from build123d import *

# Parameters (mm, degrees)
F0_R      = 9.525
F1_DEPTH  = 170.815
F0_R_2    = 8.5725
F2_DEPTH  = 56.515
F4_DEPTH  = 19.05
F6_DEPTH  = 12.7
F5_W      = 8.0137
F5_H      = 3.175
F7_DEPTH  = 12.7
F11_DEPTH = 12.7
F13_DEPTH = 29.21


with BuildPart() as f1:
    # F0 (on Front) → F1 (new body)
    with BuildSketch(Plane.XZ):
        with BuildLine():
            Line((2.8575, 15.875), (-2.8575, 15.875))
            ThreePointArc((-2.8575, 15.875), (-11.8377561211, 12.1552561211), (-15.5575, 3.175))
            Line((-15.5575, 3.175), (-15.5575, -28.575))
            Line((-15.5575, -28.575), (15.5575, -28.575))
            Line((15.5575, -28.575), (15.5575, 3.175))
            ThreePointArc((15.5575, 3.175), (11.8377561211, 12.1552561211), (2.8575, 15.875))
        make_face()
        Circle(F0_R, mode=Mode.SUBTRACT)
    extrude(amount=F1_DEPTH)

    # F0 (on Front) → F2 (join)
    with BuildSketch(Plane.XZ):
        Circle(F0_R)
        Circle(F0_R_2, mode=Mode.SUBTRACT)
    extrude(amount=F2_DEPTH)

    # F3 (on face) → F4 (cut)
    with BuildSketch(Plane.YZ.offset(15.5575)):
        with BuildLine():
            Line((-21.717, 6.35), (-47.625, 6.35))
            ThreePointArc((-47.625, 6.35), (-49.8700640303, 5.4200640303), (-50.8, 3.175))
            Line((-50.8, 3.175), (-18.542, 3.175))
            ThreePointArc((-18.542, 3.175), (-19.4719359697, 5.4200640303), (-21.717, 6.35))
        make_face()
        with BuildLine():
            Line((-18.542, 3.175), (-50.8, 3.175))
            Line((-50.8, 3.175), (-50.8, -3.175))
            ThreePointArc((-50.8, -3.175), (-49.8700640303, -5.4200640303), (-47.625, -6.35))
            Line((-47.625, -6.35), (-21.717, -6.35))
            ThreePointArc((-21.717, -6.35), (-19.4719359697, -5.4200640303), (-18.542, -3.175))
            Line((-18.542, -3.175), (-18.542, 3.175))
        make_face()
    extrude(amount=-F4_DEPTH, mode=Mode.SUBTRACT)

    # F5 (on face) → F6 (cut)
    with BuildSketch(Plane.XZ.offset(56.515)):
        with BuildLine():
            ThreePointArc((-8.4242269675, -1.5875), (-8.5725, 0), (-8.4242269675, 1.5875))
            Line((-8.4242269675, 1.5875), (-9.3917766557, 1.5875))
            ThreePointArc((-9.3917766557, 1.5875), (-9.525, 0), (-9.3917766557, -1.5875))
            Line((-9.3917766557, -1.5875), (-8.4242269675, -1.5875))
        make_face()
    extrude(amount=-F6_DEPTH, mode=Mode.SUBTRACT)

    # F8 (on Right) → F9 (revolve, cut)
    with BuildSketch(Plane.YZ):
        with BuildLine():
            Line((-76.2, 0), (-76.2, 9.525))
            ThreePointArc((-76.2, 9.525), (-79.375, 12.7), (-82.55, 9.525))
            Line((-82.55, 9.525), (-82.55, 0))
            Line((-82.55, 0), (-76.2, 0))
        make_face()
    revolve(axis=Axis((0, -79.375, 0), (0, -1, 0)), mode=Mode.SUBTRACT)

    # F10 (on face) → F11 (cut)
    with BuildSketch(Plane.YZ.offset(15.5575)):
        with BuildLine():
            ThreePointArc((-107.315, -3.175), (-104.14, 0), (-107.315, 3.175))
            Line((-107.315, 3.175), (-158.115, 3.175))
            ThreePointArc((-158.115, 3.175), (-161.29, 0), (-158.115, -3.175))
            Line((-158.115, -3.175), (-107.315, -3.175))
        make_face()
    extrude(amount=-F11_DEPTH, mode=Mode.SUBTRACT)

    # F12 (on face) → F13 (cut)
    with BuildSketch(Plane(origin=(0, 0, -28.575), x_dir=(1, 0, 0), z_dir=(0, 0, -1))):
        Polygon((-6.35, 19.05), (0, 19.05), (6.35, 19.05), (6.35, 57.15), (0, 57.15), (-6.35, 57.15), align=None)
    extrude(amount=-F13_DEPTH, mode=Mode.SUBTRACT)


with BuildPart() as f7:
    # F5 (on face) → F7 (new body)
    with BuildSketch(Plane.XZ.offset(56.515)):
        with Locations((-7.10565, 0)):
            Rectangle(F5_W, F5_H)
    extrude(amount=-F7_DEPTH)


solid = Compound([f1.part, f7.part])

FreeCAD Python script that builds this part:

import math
import FreeCAD as App
import Part
import Sketcher
from FreeCAD import Vector
Q = App.Units.Quantity


def add_polygon(sketch, points):
    """Adds a closed chain of lines whose ends are joined by coincident constraints."""
    first, n = sketch.GeometryCount, len(points)
    for a, b in zip(points, points[1:] + points[:1]):
        sketch.addGeometry(Part.LineSegment(App.Vector(*a, 0), App.Vector(*b, 0)), False)
    for i in range(n):
        sketch.addConstraint(Sketcher.Constraint("Coincident", first + i, 2, first + (i + 1) % n, 1))

doc = App.newDocument("Part")
params = doc.addObject("Spreadsheet::Sheet", "Params")
for row, (alias, value) in enumerate([
    ("sketch1_radius", "0.5 in"),
    ("sketch1_diameter", "0.75 in"),
    ("sketch1_height", "1.25 in"),
    ("sketch1_width", "0.225 in"),
    ("pad1_length", "6.725 in"),
    ("sketch2_diameter", "0.75 in"),
    ("sketch2_diameter2", "0.675 in"),
    ("pad2_length", "2.225 in"),
    ("sketch3_radius", "0.125 in"),
    ("sketch3_width", "1.02 in"),
    ("sketch3_height", "0.25 in"),
    ("pocket1_length", "0.75 in"),
    ("sketch4_radius", "0.375 in"),
    ("pocket2_length", "0.5 in"),
    ("sketch5_radius", "0.125 in"),
    ("sketch5_height", "0.375 in"),
    ("groove_angle", "360 deg"),
    ("sketch6_width", "2 in"),
    ("sketch6_radius", "0.125 in"),
    ("pocket3_length", "0.5 in"),
    ("sketch7_width", "0.5 in"),
    ("sketch7_height", "1.5 in"),
    ("pocket4_length", "1.15 in"),
    ("sketch8_height", "0.125 in"),
    ("pad3_length", "0.5 in"),
], start=1):
    params.set(f"A{row}", alias)
    params.set(f"B{row}", "=" + value)
    params.setAlias(f"B{row}", alias)

body = doc.addObject("PartDesign::Body", "Body")

sketch1 = body.newObject("Sketcher::SketchObject", "Sketch")
sketch1.AttachmentSupport = (doc.getObject("XZ_Plane"), [""])
sketch1.MapMode = "FlatFace"
sketch1.addGeometry([
    Part.LineSegment(Vector(2.8575, 15.875, 0), Vector(-2.8575, 15.875, 0)),
    Part.ArcOfCircle(Part.Circle(Vector(-2.8575, 3.175, 0), Vector(0, 0, 1), 12.7), math.radians(90), math.radians(180)),
    Part.LineSegment(Vector(-15.5575, 3.175, 0), Vector(-15.5575, -28.575, 0)),
    Part.LineSegment(Vector(-15.5575, -28.575, 0), Vector(15.5575, -28.575, 0)),
    Part.LineSegment(Vector(15.5575, -28.575, 0), Vector(15.5575, 3.175, 0)),
    Part.ArcOfCircle(Part.Circle(Vector(2.8575, 3.175, 0), Vector(0, 0, 1), 12.7), math.radians(0), math.radians(90)),
    Part.Circle(Vector(0, 0, 0), Vector(0, 0, 1), 9.525),
], False)
sketch1.addConstraint([
    Sketcher.Constraint("Tangent", 0, 2, 1, 1),
    Sketcher.Constraint("Tangent", 1, 2, 2, 1),
    Sketcher.Constraint("Coincident", 2, 2, 3, 1),
    Sketcher.Constraint("Coincident", 3, 2, 4, 1),
    Sketcher.Constraint("Tangent", 4, 2, 5, 1),
    Sketcher.Constraint("Tangent", 5, 2, 0, 1),
    Sketcher.Constraint("Horizontal", 0),
    Sketcher.Constraint("Vertical", 2),
    Sketcher.Constraint("Horizontal", 3),
    Sketcher.Constraint("Vertical", 4),
    Sketcher.Constraint("Coincident", 6, 3, -1, 1),
    Sketcher.Constraint("Equal", 1, 5),
    Sketcher.Constraint("Radius", 1, Q("0.5 in")),
    Sketcher.Constraint("Diameter", 6, Q("0.75 in")),
    Sketcher.Constraint("DistanceY", 2, 2, 2, 1, Q("1.25 in")),
    Sketcher.Constraint("DistanceX", 0, 2, 0, 1, Q("0.225 in")),
    Sketcher.Constraint("DistanceY", -1, 1, 1, 3, Q("0.125 in")),
    Sketcher.Constraint("DistanceX", 1, 3, -1, 1, Q("0.1125 in")),
])
sketch1.setExpression("Constraints[12]", "Params.sketch1_radius")
sketch1.setExpression("Constraints[13]", "Params.sketch1_diameter")
sketch1.setExpression("Constraints[14]", "Params.sketch1_height")
sketch1.setExpression("Constraints[15]", "Params.sketch1_width")
pad1 = body.newObject("PartDesign::Pad", "Pad")
pad1.Profile = sketch1
pad1.setExpression("Length", "Params.pad1_length")

sketch2 = body.newObject("Sketcher::SketchObject", "Sketch001")
sketch2.AttachmentSupport = (doc.getObject("XZ_Plane"), [""])
sketch2.MapMode = "FlatFace"
sketch2.addGeometry([
    Part.Circle(Vector(0, 0, 0), Vector(0, 0, 1), 9.525),
    Part.Circle(Vector(0, 0, 0), Vector(0, 0, 1), 8.5725),
], False)
sketch2.addConstraint([
    Sketcher.Constraint("Coincident", 0, 3, -1, 1),
    Sketcher.Constraint("Coincident", 1, 3, -1, 1),
    Sketcher.Constraint("Diameter", 0, Q("0.75 in")),
    Sketcher.Constraint("Diameter", 1, Q("0.675 in")),
])
sketch2.setExpression("Constraints[2]", "Params.sketch2_diameter")
sketch2.setExpression("Constraints[3]", "Params.sketch2_diameter2")
pad2 = body.newObject("PartDesign::Pad", "Pad001")
pad2.Profile = sketch2
pad2.setExpression("Length", "Params.pad2_length")

sketch3 = body.newObject("Sketcher::SketchObject", "Sketch002")
sketch3.AttachmentSupport = (doc.getObject("YZ_Plane"), [""])
sketch3.MapMode = "FlatFace"
sketch3.AttachmentOffset = App.Placement(Vector(0, 0, 0.6125 * 25.4), App.Rotation())
sketch3.addGeometry([
    Part.LineSegment(Vector(-21.717, 6.35, 0), Vector(-47.625, 6.35, 0)),
    Part.ArcOfCircle(Part.Circle(Vector(-47.625, 3.175, 0), Vector(0, 0, 1), 3.175), math.radians(90), math.radians(180)),
    Part.LineSegment(Vector(-50.8, 3.175, 0), Vector(-50.8, -3.175, 0)),
    Part.ArcOfCircle(Part.Circle(Vector(-47.625, -3.175, 0), Vector(0, 0, 1), 3.175), math.radians(180), math.radians(270)),
    Part.LineSegment(Vector(-47.625, -6.35, 0), Vector(-21.717, -6.35, 0)),
    Part.ArcOfCircle(Part.Circle(Vector(-21.717, -3.175, 0), Vector(0, 0, 1), 3.175), math.radians(-90), math.radians(0)),
    Part.LineSegment(Vector(-18.542, -3.175, 0), Vector(-18.542, 3.175, 0)),
    Part.ArcOfCircle(Part.Circle(Vector(-21.717, 3.175, 0), Vector(0, 0, 1), 3.175), math.radians(0), math.radians(90)),
], False)
sketch3.addConstraint([
    Sketcher.Constraint("Tangent", 0, 2, 1, 1),
    Sketcher.Constraint("Tangent", 1, 2, 2, 1),
    Sketcher.Constraint("Tangent", 2, 2, 3, 1),
    Sketcher.Constraint("Tangent", 3, 2, 4, 1),
    Sketcher.Constraint("Tangent", 4, 2, 5, 1),
    Sketcher.Constraint("Tangent", 5, 2, 6, 1),
    Sketcher.Constraint("Tangent", 6, 2, 7, 1),
    Sketcher.Constraint("Tangent", 7, 2, 0, 1),
    Sketcher.Constraint("Horizontal", 0),
    Sketcher.Constraint("Vertical", 2),
    Sketcher.Constraint("Horizontal", 4),
    Sketcher.Constraint("Vertical", 6),
    Sketcher.Constraint("Equal", 1, 3),
    Sketcher.Constraint("Equal", 3, 5),
    Sketcher.Constraint("Equal", 5, 7),
    Sketcher.Constraint("DistanceX", 1, 2, -1, 1, Q("2 in")),
    Sketcher.Constraint("Radius", 1, Q("0.125 in")),
    Sketcher.Constraint("DistanceX", 0, 2, 0, 1, Q("1.02 in")),
    Sketcher.Constraint("DistanceY", 2, 2, 2, 1, Q("0.25 in")),
    Sketcher.Constraint("DistanceY", -1, 1, 0, 2, Q("0.25 in")),
])
sketch3.setExpression("Constraints[16]", "Params.sketch3_radius")
sketch3.setExpression("Constraints[17]", "Params.sketch3_width")
sketch3.setExpression("Constraints[18]", "Params.sketch3_height")
pocket1 = body.newObject("PartDesign::Pocket", "Pocket")
pocket1.Profile = sketch3
pocket1.setExpression("Length", "Params.pocket1_length")

sketch4 = body.newObject("Sketcher::SketchObject", "Sketch003")
sketch4.AttachmentSupport = (doc.getObject("XZ_Plane"), [""])
sketch4.MapMode = "FlatFace"
sketch4.AttachmentOffset = App.Placement(Vector(0, 0, 2.225 * 25.4), App.Rotation())
sketch4.addGeometry([
    Part.ArcOfCircle(Part.Circle(Vector(0, 0, 0), Vector(0, 0, 1), 8.5725), math.radians(169.328071), math.radians(190.671929)),
    Part.LineSegment(Vector(-8.424227, 1.5875, 0), Vector(-9.391777, 1.5875, 0)),
    Part.ArcOfCircle(Part.Circle(Vector(0, 0, 0), Vector(0, 0, 1), 9.525), math.radians(170.405932), math.radians(189.594068)),
    Part.LineSegment(Vector(-9.391777, -1.5875, 0), Vector(-8.424227, -1.5875, 0)),
], False)
sketch4.addConstraint([
    Sketcher.Constraint("Coincident", 0, 1, 1, 1),
    Sketcher.Constraint("Coincident", 1, 2, 2, 1),
    Sketcher.Constraint("Coincident", 2, 2, 3, 1),
    Sketcher.Constraint("Coincident", 3, 2, 0, 2),
    Sketcher.Constraint("Horizontal", 1),
    Sketcher.Constraint("Horizontal", 3),
    Sketcher.Constraint("Coincident", 0, 3, -1, 1),
    Sketcher.Constraint("Coincident", 2, 3, -1, 1),
    Sketcher.Constraint("Vertical", 1, 2, 2, 2),
    Sketcher.Constraint("Radius", 2, Q("0.375 in")),
    Sketcher.Constraint("Radius", 0, Q("0.3375 in")),
    Sketcher.Constraint("DistanceY", -1, 1, 0, 1, Q("0.0625 in")),
])
sketch4.setExpression("Constraints[9]", "Params.sketch4_radius")
pocket2 = body.newObject("PartDesign::Pocket", "Pocket001")
pocket2.Profile = sketch4
pocket2.setExpression("Length", "Params.pocket2_length")

sketch5 = body.newObject("Sketcher::SketchObject", "Sketch004")
sketch5.AttachmentSupport = (doc.getObject("YZ_Plane"), [""])
sketch5.MapMode = "FlatFace"
sketch5.addGeometry([
    Part.LineSegment(Vector(-76.2, 0, 0), Vector(-76.2, 9.525, 0)),
    Part.ArcOfCircle(Part.Circle(Vector(-79.375, 9.525, 0), Vector(0, 0, 1), 3.175), math.radians(0), math.radians(180)),
    Part.LineSegment(Vector(-82.55, 9.525, 0), Vector(-82.55, 0, 0)),
    Part.LineSegment(Vector(-82.55, 0, 0), Vector(-76.2, 0, 0)),
], False)
sketch5.addConstraint([
    Sketcher.Constraint("Tangent", 0, 2, 1, 1),
    Sketcher.Constraint("Tangent", 1, 2, 2, 1),
    Sketcher.Constraint("Coincident", 2, 2, 3, 1),
    Sketcher.Constraint("Coincident", 3, 2, 0, 1),
    Sketcher.Constraint("Vertical", 0),
    Sketcher.Constraint("Vertical", 2),
    Sketcher.Constraint("Horizontal", 3),
    Sketcher.Constraint("PointOnObject", 2, 2, -1),
    Sketcher.Constraint("DistanceX", 0, 2, -1, 1, Q("3 in")),
    Sketcher.Constraint("Radius", 1, Q("0.125 in")),
    Sketcher.Constraint("DistanceY", 0, 1, 0, 2, Q("0.375 in")),
])
sketch5.setExpression("Constraints[9]", "Params.sketch5_radius")
sketch5.setExpression("Constraints[10]", "Params.sketch5_height")
groove = body.newObject("PartDesign::Groove", "Groove")
groove.Profile = sketch5
groove.ReferenceAxis = (sketch5, ["H_Axis"])
groove.setExpression("Angle", "Params.groove_angle")

sketch6 = body.newObject("Sketcher::SketchObject", "Sketch005")
sketch6.AttachmentSupport = (doc.getObject("YZ_Plane"), [""])
sketch6.MapMode = "FlatFace"
sketch6.AttachmentOffset = App.Placement(Vector(0, 0, 0.6125 * 25.4), App.Rotation())
sketch6.addGeometry([
    Part.ArcOfCircle(Part.Circle(Vector(-107.315, 0, 0), Vector(0, 0, 1), 3.175), math.radians(-90), math.radians(90)),
    Part.LineSegment(Vector(-107.315, 3.175, 0), Vector(-158.115, 3.175, 0)),
    Part.ArcOfCircle(Part.Circle(Vector(-158.115, 0, 0), Vector(0, 0, 1), 3.175), math.radians(90), math.radians(270)),
    Part.LineSegment(Vector(-158.115, -3.175, 0), Vector(-107.315, -3.175, 0)),
], False)
sketch6.addConstraint([
    Sketcher.Constraint("Tangent", 0, 2, 1, 1),
    Sketcher.Constraint("Tangent", 1, 2, 2, 1),
    Sketcher.Constraint("Tangent", 2, 2, 3, 1),
    Sketcher.Constraint("Tangent", 3, 2, 0, 1),
    Sketcher.Constraint("Horizontal", 1),
    Sketcher.Constraint("Horizontal", 3),
    Sketcher.Constraint("PointOnObject", 0, 3, -1),
    Sketcher.Constraint("DistanceX", 1, 2, 1, 1, Q("2 in")),
    Sketcher.Constraint("Radius", 0, Q("0.125 in")),
    Sketcher.Constraint("DistanceX", 0, 3, -1, 1, Q("4.225 in")),
])
sketch6.setExpression("Constraints[7]", "Params.sketch6_width")
sketch6.setExpression("Constraints[8]", "Params.sketch6_radius")
pocket3 = body.newObject("PartDesign::Pocket", "Pocket002")
pocket3.Profile = sketch6
pocket3.setExpression("Length", "Params.pocket3_length")

sketch7 = body.newObject("Sketcher::SketchObject", "Sketch006")
sketch7.AttachmentSupport = (doc.getObject("XY_Plane"), [""])
sketch7.MapMode = "FlatFace"
sketch7.AttachmentOffset = App.Placement(Vector(0, 0, -1.125 * 25.4), App.Rotation())
add_polygon(sketch7, [(-6.35, -19.05), (6.35, -19.05), (6.35, -57.15), (-6.35, -57.15)])
sketch7.addConstraint([
    Sketcher.Constraint("Horizontal", 0),
    Sketcher.Constraint("Vertical", 1),
    Sketcher.Constraint("Horizontal", 2),
    Sketcher.Constraint("Vertical", 3),
    Sketcher.Constraint("DistanceX", 0, 1, 0, 2, Q("0.5 in")),
    Sketcher.Constraint("DistanceY", 1, 2, 1, 1, Q("1.5 in")),
    Sketcher.Constraint("DistanceX", -1, 1, 0, 2, Q("0.25 in")),
    Sketcher.Constraint("DistanceY", 0, 2, -1, 1, Q("0.75 in")),
])
sketch7.setExpression("Constraints[8]", "Params.sketch7_width")
sketch7.setExpression("Constraints[9]", "Params.sketch7_height")
pocket4 = body.newObject("PartDesign::Pocket", "Pocket003")
pocket4.Profile = sketch7
pocket4.setExpression("Length", "Params.pocket4_length")
pocket4.Reversed = True
body2 = doc.addObject("PartDesign::Body", "Body001")

sketch8 = body2.newObject("Sketcher::SketchObject", "Sketch007")
sketch8.AttachmentSupport = (doc.getObject("XZ_Plane001"), [""])
sketch8.MapMode = "FlatFace"
sketch8.AttachmentOffset = App.Placement(Vector(0, 0, 2.225 * 25.4), App.Rotation())
add_polygon(sketch8, [(-11.1125, 1.5875), (-11.1125, -1.5875), (-3.0988, -1.5875), (-3.0988, 1.5875)])
sketch8.addConstraint([
    Sketcher.Constraint("Vertical", 0),
    Sketcher.Constraint("Horizontal", 1),
    Sketcher.Constraint("Vertical", 2),
    Sketcher.Constraint("Horizontal", 3),
    Sketcher.Constraint("DistanceY", 0, 2, 0, 1, Q("0.125 in")),
    Sketcher.Constraint("DistanceX", 1, 1, 1, 2, Q("0.3155 in")),
    Sketcher.Constraint("DistanceX", 0, 2, -1, 1, Q("0.4375 in")),
    Sketcher.Constraint("DistanceY", 0, 2, -1, 1, Q("0.0625 in")),
])
sketch8.setExpression("Constraints[8]", "Params.sketch8_height")
pad3 = body2.newObject("PartDesign::Pad", "Pad002")
pad3.Profile = sketch8
pad3.setExpression("Length", "Params.pad3_length")
pad3.Reversed = True

doc.recompute()
